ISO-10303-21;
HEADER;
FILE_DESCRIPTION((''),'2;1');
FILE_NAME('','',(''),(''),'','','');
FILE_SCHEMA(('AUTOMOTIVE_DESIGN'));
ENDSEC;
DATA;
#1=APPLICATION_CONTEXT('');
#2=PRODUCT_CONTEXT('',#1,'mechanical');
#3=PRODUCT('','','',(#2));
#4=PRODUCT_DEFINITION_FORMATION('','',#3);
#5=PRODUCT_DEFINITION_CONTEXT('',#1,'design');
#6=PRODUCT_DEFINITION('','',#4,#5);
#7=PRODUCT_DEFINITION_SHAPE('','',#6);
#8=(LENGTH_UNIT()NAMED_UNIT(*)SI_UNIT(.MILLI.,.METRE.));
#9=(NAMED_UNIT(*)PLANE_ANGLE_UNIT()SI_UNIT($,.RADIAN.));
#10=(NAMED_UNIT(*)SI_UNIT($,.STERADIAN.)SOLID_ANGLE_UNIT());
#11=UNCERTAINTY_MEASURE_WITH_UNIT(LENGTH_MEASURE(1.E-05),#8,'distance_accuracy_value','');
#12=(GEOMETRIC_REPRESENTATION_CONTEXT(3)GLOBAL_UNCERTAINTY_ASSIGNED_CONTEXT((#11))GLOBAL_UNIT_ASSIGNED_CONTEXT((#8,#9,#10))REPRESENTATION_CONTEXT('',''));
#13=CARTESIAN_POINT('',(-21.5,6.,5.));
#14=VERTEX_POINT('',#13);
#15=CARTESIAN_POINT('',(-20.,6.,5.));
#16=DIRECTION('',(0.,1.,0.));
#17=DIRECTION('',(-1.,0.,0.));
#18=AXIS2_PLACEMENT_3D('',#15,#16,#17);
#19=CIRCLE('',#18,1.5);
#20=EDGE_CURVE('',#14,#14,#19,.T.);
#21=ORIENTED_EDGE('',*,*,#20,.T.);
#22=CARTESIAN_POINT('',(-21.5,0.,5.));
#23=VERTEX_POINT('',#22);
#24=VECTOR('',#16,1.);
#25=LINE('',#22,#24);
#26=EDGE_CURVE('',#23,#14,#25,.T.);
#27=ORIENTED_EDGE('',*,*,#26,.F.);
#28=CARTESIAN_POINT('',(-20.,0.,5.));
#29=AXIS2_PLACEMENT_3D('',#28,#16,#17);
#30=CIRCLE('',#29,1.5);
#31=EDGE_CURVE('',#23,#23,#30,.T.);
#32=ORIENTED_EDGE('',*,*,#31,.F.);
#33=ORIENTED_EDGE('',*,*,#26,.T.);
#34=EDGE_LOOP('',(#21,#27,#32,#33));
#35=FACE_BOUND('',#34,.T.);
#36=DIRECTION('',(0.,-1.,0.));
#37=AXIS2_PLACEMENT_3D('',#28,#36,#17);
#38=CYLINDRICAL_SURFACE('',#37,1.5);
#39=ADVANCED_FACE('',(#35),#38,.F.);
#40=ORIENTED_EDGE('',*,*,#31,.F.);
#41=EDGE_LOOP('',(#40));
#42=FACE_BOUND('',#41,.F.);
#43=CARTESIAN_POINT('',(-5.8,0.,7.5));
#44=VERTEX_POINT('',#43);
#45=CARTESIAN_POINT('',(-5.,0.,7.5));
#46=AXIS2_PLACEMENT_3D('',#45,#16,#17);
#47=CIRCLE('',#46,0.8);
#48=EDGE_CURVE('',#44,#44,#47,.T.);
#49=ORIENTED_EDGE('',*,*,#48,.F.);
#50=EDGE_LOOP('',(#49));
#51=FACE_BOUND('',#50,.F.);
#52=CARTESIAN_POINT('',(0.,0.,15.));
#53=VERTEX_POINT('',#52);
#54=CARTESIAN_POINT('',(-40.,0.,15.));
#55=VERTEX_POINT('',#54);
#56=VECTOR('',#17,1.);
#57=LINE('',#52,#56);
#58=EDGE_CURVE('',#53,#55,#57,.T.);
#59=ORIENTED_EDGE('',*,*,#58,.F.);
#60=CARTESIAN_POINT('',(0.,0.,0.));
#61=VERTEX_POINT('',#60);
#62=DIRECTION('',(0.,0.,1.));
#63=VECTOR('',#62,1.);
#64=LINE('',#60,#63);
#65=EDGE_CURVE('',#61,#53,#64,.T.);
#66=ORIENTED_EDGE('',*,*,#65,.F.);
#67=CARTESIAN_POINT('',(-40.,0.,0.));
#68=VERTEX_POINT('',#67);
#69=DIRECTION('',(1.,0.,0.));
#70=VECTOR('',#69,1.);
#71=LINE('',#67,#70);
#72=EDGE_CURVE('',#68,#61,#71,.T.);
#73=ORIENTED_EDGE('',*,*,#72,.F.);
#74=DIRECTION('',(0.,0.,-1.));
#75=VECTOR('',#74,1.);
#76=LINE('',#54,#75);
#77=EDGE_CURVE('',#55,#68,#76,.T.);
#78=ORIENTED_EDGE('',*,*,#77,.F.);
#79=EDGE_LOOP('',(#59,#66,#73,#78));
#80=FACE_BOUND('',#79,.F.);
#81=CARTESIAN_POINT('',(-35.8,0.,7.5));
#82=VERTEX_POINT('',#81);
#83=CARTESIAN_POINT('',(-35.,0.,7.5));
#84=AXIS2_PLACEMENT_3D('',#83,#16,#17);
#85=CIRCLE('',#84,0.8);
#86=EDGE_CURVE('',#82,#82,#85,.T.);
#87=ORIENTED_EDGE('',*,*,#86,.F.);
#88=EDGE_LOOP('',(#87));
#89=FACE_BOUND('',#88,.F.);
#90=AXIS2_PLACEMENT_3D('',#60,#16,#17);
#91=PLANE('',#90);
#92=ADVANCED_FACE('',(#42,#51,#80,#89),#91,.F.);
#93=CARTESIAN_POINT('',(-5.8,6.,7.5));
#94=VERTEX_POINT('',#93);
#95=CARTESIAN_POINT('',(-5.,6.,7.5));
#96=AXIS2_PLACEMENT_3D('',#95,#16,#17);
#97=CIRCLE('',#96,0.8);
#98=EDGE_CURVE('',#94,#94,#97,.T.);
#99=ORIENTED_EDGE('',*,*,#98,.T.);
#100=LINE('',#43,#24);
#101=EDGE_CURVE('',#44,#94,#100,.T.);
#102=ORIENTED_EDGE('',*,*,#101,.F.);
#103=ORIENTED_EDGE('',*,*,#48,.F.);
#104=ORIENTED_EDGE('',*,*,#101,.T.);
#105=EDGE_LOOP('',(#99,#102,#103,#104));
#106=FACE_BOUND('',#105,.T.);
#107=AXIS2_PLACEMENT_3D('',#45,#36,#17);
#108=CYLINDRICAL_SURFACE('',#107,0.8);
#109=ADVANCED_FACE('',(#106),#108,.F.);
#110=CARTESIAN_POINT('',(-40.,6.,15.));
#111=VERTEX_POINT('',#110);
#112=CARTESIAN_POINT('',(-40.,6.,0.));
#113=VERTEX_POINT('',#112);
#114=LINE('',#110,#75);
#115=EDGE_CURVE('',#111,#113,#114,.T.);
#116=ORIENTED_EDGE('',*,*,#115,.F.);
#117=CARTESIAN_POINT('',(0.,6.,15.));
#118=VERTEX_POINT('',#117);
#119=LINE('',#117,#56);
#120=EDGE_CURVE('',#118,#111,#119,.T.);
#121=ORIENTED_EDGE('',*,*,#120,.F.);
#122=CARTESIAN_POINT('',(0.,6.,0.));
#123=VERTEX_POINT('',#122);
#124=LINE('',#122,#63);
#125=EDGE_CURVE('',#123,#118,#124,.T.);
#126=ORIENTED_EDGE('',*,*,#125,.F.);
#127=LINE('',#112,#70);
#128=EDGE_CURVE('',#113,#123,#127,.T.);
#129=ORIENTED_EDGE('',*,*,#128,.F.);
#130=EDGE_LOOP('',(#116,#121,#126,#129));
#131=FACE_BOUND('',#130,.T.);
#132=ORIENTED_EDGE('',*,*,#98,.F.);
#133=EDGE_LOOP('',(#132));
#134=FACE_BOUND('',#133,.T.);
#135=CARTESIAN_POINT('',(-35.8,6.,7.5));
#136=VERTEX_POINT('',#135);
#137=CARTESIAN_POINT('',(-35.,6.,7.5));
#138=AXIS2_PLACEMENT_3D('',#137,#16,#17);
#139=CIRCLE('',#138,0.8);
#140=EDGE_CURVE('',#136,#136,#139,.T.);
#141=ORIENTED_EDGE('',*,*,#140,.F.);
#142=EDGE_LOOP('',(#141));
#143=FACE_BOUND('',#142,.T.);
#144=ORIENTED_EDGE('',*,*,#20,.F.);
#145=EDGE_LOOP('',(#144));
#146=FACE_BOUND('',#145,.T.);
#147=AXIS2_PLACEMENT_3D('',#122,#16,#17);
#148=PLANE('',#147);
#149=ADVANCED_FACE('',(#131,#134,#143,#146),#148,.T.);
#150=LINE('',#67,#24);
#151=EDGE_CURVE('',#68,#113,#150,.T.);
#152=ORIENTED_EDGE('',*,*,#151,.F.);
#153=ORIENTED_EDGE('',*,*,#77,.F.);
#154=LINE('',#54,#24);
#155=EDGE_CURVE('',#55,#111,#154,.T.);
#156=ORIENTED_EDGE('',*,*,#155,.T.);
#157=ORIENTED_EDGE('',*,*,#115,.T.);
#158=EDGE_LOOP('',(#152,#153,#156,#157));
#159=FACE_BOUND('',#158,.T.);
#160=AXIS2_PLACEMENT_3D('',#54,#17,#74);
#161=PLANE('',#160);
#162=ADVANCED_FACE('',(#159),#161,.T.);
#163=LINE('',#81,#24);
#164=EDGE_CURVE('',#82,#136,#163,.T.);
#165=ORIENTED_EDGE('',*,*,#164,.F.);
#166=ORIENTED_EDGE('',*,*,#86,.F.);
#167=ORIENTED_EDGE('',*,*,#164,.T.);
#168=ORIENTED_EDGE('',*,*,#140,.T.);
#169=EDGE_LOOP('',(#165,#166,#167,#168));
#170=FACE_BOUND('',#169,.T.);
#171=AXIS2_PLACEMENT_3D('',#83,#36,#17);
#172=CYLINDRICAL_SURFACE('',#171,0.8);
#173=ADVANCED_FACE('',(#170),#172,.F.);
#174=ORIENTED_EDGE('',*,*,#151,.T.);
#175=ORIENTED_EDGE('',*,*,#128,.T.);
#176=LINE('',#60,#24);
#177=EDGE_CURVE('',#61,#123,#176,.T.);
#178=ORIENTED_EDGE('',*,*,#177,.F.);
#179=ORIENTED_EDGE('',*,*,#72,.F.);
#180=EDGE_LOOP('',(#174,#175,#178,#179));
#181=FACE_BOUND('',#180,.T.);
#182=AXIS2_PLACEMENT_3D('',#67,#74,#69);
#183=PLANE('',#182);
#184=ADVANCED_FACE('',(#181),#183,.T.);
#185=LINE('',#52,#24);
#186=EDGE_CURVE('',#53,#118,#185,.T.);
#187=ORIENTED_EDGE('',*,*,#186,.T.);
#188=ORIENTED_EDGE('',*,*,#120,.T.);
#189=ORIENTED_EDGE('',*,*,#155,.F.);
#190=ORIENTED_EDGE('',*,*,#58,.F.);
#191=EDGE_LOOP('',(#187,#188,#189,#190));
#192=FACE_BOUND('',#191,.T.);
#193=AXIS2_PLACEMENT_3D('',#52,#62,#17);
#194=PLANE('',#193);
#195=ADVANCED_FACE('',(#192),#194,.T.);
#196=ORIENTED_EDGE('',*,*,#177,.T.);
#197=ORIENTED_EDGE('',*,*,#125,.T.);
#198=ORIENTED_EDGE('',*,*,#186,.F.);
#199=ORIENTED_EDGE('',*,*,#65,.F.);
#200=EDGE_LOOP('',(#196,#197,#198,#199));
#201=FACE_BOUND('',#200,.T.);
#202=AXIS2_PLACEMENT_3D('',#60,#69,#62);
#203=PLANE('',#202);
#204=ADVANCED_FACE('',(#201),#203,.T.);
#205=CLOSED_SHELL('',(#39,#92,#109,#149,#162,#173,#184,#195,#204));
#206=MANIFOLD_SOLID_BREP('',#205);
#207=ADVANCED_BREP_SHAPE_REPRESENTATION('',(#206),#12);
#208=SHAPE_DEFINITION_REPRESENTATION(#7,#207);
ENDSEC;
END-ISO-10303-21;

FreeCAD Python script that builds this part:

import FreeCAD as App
import Part
import Sketcher

V = App.Vector
Q = App.Units.Quantity


def add_polygon(sketch, points):
    """Adds a closed chain of lines whose ends are joined by coincident constraints."""
    first, n = sketch.GeometryCount, len(points)
    for a, b in zip(points, points[1:] + points[:1]):
        sketch.addGeometry(Part.LineSegment(App.Vector(*a, 0), App.Vector(*b, 0)), False)
    for i in range(n):
        sketch.addConstraint(Sketcher.Constraint("Coincident", first + i, 2, first + (i + 1) % n, 1))

doc = App.newDocument("Part")
params = doc.addObject("Spreadsheet::Sheet", "Params")
for row, (alias, value) in enumerate([
    ("sketch1_diameter", "3 mm"),
    ("sketch1_diameter2", "1.6 mm"),
    ("sketch1_height", "15 mm"),
    ("pad1_length", "6 mm"),
], start=1):
    params.set(f"A{row}", alias)
    params.set(f"B{row}", "=" + value)
    params.setAlias(f"B{row}", alias)

body = doc.addObject("PartDesign::Body", "Body")

sketch1 = body.newObject("Sketcher::SketchObject", "Sketch")
sketch1.AttachmentSupport = (doc.getObject("XZ_Plane"), [""])
sketch1.MapMode = "FlatFace"
add_polygon(sketch1, [(-40, 15), (0, 15), (0, 0), (-40, 0)])
sketch1.addGeometry(Part.Circle(V(-20, 5, 0), V(0, 0, 1), 1.5), False)
sketch1.addGeometry(Part.Circle(V(-5, 7.5, 0), V(0, 0, 1), 0.8), False)
sketch1.addGeometry(Part.Circle(V(-35, 7.5, 0), V(0, 0, 1), 0.8), False)
sketch1.addConstraint([
    Sketcher.Constraint("Horizontal", 0),
    Sketcher.Constraint("Vertical", 1),
    Sketcher.Constraint("Horizontal", 2),
    Sketcher.Constraint("Vertical", 3),
    Sketcher.Constraint("Coincident", 1, 2, -1, 1),
    Sketcher.Constraint("Equal", 5, 6),
    Sketcher.Constraint("Horizontal", 5, 3, 6, 3),
    Sketcher.Constraint("Diameter", 4, Q("3 mm")),
    Sketcher.Constraint("Diameter", 5, Q("1.6 mm")),
    Sketcher.Constraint("DistanceY", 1, 2, 1, 1, Q("15 mm")),
    Sketcher.Constraint("DistanceX", 4, 3, -1, 1, Q("20 mm")),
    Sketcher.Constraint("DistanceY", -1, 1, 4, 3, Q("5 mm")),
    Sketcher.Constraint("DistanceX", 5, 3, -1, 1, Q("5 mm")),
    Sketcher.Constraint("DistanceX", 6, 3, 4, 3, Q("15 mm")),
    Sketcher.Constraint("DistanceX", 2, 2, 6, 3, Q("5 mm")),
    Sketcher.Constraint("DistanceY", -1, 1, 5, 3, Q("7.5 mm")),
])
sketch1.setExpression("Constraints[11]", "Params.sketch1_diameter")
sketch1.setExpression("Constraints[12]", "Params.sketch1_diameter2")
sketch1.setExpression("Constraints[13]", "Params.sketch1_height")
pad1 = body.newObject("PartDesign::Pad", "Pad")
pad1.Profile = sketch1
pad1.setExpression("Length", "Params.pad1_length")
pad1.Reversed = True

doc.recompute()
